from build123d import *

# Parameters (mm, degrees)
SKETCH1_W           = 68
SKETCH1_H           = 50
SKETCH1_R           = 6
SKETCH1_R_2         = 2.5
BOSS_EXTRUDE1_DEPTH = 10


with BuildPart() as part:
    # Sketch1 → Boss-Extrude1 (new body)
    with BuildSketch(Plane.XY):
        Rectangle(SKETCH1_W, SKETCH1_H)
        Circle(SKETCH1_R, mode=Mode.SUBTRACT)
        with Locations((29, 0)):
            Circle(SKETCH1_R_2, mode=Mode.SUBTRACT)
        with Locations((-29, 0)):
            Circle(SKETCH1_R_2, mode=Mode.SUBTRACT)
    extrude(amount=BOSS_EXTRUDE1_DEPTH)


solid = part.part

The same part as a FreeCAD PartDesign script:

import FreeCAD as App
import Part
import Sketcher

V = App.Vector


def add_polygon(sketch, points):
    """Adds a closed chain of lines whose ends are joined by coincident constraints."""
    first, n = sketch.GeometryCount, len(points)
    for a, b in zip(points, points[1:] + points[:1]):
        sketch.addGeometry(Part.LineSegment(App.Vector(*a, 0), App.Vector(*b, 0)), False)
    for i in range(n):
        sketch.addConstraint(Sketcher.Constraint("Coincident", first + i, 2, first + (i + 1) % n, 1))

doc = App.newDocument("Part")
body = doc.addObject("PartDesign::Body", "Body")

sketch1 = doc.addObject("Sketcher::SketchObject", "Sketch")
body.addObject(sketch1)
sketch1.AttachmentSupport = (doc.XY_Plane, [""])
sketch1.MapMode = "FlatFace"
add_polygon(sketch1, [(-34, 25), (-34, -25), (34, -25), (34, 25)])
sketch1.addGeometry(Part.Circle(V(-29, 0, 0), V(0, 0, 1), 2.5), False)
sketch1.addGeometry(Part.Circle(V(0, 0, 0), V(0, 0, 1), 6), False)
sketch1.addGeometry(Part.Circle(V(29, 0, 0), V(0, 0, 1), 2.5), False)
sketch1.addConstraint(Sketcher.Constraint("Vertical", 0))
sketch1.addConstraint(Sketcher.Constraint("Horizontal", 1))
sketch1.addConstraint(Sketcher.Constraint("Vertical", 2))
sketch1.addConstraint(Sketcher.Constraint("Horizontal", 3))
sketch1.addConstraint(Sketcher.Constraint("Coincident", 5, 3, -1, 1))
sketch1.addConstraint(Sketcher.Constraint("Equal", 4, 6))
sketch1.addConstraint(Sketcher.Constraint("Symmetric", 4, 3, 6, 3, -1, 1))
sketch1.addConstraint(Sketcher.Constraint("Symmetric", 0, 2, 2, 2, -1, 1))
sketch1.addConstraint(Sketcher.Constraint("PointOnObject", 4, 3, -1))
sketch1.addConstraint(Sketcher.Constraint("Diameter", 4, 5.0))
sketch1.addConstraint(Sketcher.Constraint("Diameter", 5, 12.0))
sketch1.addConstraint(Sketcher.Constraint("DistanceX", 1, 1, 1, 2, 68.0))
sketch1.addConstraint(Sketcher.Constraint("DistanceY", 0, 2, 0, 1, 50.0))
sketch1.addConstraint(Sketcher.Constraint("DistanceX", 4, 3, -1, 1, 29.0))
pad1 = doc.addObject("PartDesign::Pad", "Pad")
body.addObject(pad1)
pad1.Profile = sketch1
pad1.Length = 10

doc.recompute()
